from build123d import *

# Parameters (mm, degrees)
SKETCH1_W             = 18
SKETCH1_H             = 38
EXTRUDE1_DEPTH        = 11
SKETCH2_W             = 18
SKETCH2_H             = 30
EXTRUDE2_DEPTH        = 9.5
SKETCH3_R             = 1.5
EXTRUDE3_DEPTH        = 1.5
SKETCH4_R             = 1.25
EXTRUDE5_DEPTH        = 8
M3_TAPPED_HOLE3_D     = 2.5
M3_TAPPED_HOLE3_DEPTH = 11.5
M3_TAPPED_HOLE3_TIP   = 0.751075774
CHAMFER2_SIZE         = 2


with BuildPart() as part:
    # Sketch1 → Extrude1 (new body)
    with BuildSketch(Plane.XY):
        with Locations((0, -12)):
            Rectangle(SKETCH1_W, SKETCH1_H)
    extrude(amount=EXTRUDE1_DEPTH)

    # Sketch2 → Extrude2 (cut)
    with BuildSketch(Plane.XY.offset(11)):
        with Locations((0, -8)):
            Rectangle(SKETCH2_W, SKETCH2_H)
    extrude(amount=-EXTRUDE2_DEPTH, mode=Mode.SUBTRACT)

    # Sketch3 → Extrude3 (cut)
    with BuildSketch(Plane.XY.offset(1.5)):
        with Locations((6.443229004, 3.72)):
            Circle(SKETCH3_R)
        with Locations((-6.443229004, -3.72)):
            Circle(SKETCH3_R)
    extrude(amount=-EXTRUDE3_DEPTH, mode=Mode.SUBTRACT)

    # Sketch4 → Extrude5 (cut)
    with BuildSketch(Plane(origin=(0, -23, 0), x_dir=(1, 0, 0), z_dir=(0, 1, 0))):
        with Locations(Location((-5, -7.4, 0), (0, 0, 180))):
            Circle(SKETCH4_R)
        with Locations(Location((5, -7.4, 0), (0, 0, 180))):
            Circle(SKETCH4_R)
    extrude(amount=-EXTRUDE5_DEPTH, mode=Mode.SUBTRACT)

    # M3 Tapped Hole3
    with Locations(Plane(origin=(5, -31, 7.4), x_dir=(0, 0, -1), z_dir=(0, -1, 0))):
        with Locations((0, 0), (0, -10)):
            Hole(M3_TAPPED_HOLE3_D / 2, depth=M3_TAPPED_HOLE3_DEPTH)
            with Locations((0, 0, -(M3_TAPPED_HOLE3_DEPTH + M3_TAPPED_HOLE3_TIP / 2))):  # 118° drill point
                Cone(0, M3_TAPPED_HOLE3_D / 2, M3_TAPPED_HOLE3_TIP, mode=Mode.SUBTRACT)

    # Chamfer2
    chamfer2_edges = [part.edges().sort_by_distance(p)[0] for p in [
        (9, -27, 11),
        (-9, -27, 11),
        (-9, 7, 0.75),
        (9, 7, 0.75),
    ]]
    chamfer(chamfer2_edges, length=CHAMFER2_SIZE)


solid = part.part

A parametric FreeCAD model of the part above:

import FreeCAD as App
import Part
import Sketcher
from FreeCAD import Vector


def edges_at(feature, points):
    """Names of the edges that pass closest to the given points."""
    edges = feature.Shape.Edges
    near = lambda p: min(range(len(edges)), key=lambda i: edges[i].distToShape(Part.Vertex(*p))[0])
    return sorted({f"Edge{near(p) + 1}" for p in points})

doc = App.newDocument("Part")
body = doc.addObject("PartDesign::Body", "Body")

# Sketch on XY plane
sketch1 = doc.addObject("Sketcher::SketchObject", "Sketch")
body.addObject(sketch1)
sketch1.AttachmentSupport = (doc.XY_Plane, [""])
sketch1.MapMode = "FlatFace"
sketch1.addGeometry([
    Part.LineSegment(Vector(-9, 7, 0), Vector(-9, -31, 0)),
    Part.LineSegment(Vector(-9, -31, 0), Vector(9, -31, 0)),
    Part.LineSegment(Vector(9, -31, 0), Vector(9, 7, 0)),
    Part.LineSegment(Vector(9, 7, 0), Vector(-9, 7, 0)),
], False)
sketch1.addConstraint([
    Sketcher.Constraint("Coincident", 0, 2, 1, 1),
    Sketcher.Constraint("Coincident", 1, 2, 2, 1),
    Sketcher.Constraint("Coincident", 2, 2, 3, 1),
    Sketcher.Constraint("Coincident", 3, 2, 0, 1),
    Sketcher.Constraint("Vertical", 0),
    Sketcher.Constraint("Horizontal", 1),
    Sketcher.Constraint("Vertical", 2),
    Sketcher.Constraint("Horizontal", 3),
    Sketcher.Constraint("DistanceX", 1, 1, 1, 2, 18.0),
    Sketcher.Constraint("DistanceY", 0, 2, 0, 1, 38.0),
    Sketcher.Constraint("DistanceX", 0, 2, -1, 1, 9.0),
    Sketcher.Constraint("DistanceY", 0, 2, -1, 1, 31.0),
])
pad1 = doc.addObject("PartDesign::Pad", "Pad")
body.addObject(pad1)
pad1.Profile = sketch1
pad1.Length = 11

# Sketch on XY plane
sketch2 = doc.addObject("Sketcher::SketchObject", "Sketch001")
body.addObject(sketch2)
sketch2.AttachmentSupport = (doc.XY_Plane, [""])
sketch2.MapMode = "FlatFace"
sketch2.AttachmentOffset = App.Placement(Vector(0, 0, 11), App.Rotation())
sketch2.addGeometry([
    Part.LineSegment(Vector(-9, 7, 0), Vector(-9, -23, 0)),
    Part.LineSegment(Vector(-9, -23, 0), Vector(9, -23, 0)),
    Part.LineSegment(Vector(9, -23, 0), Vector(9, 7, 0)),
    Part.LineSegment(Vector(9, 7, 0), Vector(-9, 7, 0)),
], False)
sketch2.addConstraint([
    Sketcher.Constraint("Coincident", 0, 2, 1, 1),
    Sketcher.Constraint("Coincident", 1, 2, 2, 1),
    Sketcher.Constraint("Coincident", 2, 2, 3, 1),
    Sketcher.Constraint("Coincident", 3, 2, 0, 1),
    Sketcher.Constraint("Vertical", 0),
    Sketcher.Constraint("Horizontal", 1),
    Sketcher.Constraint("Vertical", 2),
    Sketcher.Constraint("Horizontal", 3),
    Sketcher.Constraint("DistanceX", 1, 1, 1, 2, 18.0),
    Sketcher.Constraint("DistanceY", 0, 2, 0, 1, 30.0),
    Sketcher.Constraint("DistanceX", 0, 2, -1, 1, 9.0),
    Sketcher.Constraint("DistanceY", 0, 2, -1, 1, 23.0),
])
pocket1 = doc.addObject("PartDesign::Pocket", "Pocket")
body.addObject(pocket1)
pocket1.Profile = sketch2
pocket1.Length = 9.5

# Sketch on XY plane
sketch3 = doc.addObject("Sketcher::SketchObject", "Sketch002")
body.addObject(sketch3)
sketch3.AttachmentSupport = (doc.XY_Plane, [""])
sketch3.MapMode = "FlatFace"
sketch3.AttachmentOffset = App.Placement(Vector(0, 0, 1.5), App.Rotation())
sketch3.addGeometry([
    Part.Circle(Vector(6.443229, 3.72, 0), Vector(0, 0, 1), 1.5),
    Part.Circle(Vector(-6.443229, -3.72, 0), Vector(0, 0, 1), 1.5),
], False)
sketch3.addConstraint([
    Sketcher.Constraint("Equal", 0, 1),
    Sketcher.Constraint("Symmetric", 0, 3, 1, 3, -1, 1),
    Sketcher.Constraint("Diameter", 0, 3.0),
    Sketcher.Constraint("DistanceY", -1, 1, 0, 3, 3.72),
    Sketcher.Constraint("DistanceX", -1, 1, 0, 3, 6.443229),
])
pocket2 = doc.addObject("PartDesign::Pocket", "Pocket001")
body.addObject(pocket2)
pocket2.Profile = sketch3
pocket2.Length = 1.5

# Sketch on XZ plane
sketch4 = doc.addObject("Sketcher::SketchObject", "Sketch003")
body.addObject(sketch4)
sketch4.AttachmentSupport = (doc.XZ_Plane, [""])
sketch4.MapMode = "FlatFace"
sketch4.AttachmentOffset = App.Placement(Vector(0, 0, 23), App.Rotation())
sketch4.addGeometry([
    Part.Circle(Vector(-5, 7.4, 0), Vector(0, 0, 1), 1.25),
    Part.Circle(Vector(5, 7.4, 0), Vector(0, 0, 1), 1.25),
], False)
sketch4.addConstraint([
    Sketcher.Constraint("Equal", 0, 1),
    Sketcher.Constraint("Symmetric", 0, 3, 1, 3, -2),
    Sketcher.Constraint("Diameter", 0, 2.5),
    Sketcher.Constraint("DistanceX", 0, 3, -1, 1, 5.0),
    Sketcher.Constraint("DistanceY", -1, 1, 0, 3, 7.4),
])
pocket3 = doc.addObject("PartDesign::Pocket", "Pocket002")
body.addObject(pocket3)
pocket3.Profile = sketch4
pocket3.Length = 8
pocket3.Reversed = True

# Sketch on XZ plane
sketch5 = doc.addObject("Sketcher::SketchObject", "Sketch004")
body.addObject(sketch5)
sketch5.AttachmentSupport = (doc.XZ_Plane, [""])
sketch5.MapMode = "FlatFace"
sketch5.AttachmentOffset = App.Placement(Vector(0, 0, 31), App.Rotation())
sketch5.addGeometry([
    Part.Circle(Vector(5, 7.4, 0), Vector(0, 0, 1), 1.25),
    Part.Circle(Vector(-5, 7.4, 0), Vector(0, 0, 1), 1.25),
], False)
sketch5.addConstraint([
    Sketcher.Constraint("Equal", 0, 1),
    Sketcher.Constraint("Symmetric", 0, 3, 1, 3, -2),
    Sketcher.Constraint("Diameter", 0, 2.5),
    Sketcher.Constraint("DistanceX", -1, 1, 0, 3, 5.0),
    Sketcher.Constraint("DistanceY", -1, 1, 0, 3, 7.4),
])
doc.recompute()
hole = doc.addObject("PartDesign::Hole", "Hole")
body.addObject(hole)
hole.Profile = sketch5
hole.ThreadType = "None"
hole.Diameter = 2.5
hole.DepthType = "Dimension"
hole.Depth = 11.5
hole.DrillPoint = "Angled"
hole.DrillPointAngle = 118
doc.recompute()

chamfer = doc.addObject("PartDesign::Chamfer", "Chamfer")
body.addObject(chamfer)
chamfer.Base = (hole, edges_at(hole, [
    (9, -27, 11),
    (-9, -27, 11),
    (-9, 7, 0.75),
    (9, 7, 0.75),
]))
chamfer.Size = 2

doc.recompute()
